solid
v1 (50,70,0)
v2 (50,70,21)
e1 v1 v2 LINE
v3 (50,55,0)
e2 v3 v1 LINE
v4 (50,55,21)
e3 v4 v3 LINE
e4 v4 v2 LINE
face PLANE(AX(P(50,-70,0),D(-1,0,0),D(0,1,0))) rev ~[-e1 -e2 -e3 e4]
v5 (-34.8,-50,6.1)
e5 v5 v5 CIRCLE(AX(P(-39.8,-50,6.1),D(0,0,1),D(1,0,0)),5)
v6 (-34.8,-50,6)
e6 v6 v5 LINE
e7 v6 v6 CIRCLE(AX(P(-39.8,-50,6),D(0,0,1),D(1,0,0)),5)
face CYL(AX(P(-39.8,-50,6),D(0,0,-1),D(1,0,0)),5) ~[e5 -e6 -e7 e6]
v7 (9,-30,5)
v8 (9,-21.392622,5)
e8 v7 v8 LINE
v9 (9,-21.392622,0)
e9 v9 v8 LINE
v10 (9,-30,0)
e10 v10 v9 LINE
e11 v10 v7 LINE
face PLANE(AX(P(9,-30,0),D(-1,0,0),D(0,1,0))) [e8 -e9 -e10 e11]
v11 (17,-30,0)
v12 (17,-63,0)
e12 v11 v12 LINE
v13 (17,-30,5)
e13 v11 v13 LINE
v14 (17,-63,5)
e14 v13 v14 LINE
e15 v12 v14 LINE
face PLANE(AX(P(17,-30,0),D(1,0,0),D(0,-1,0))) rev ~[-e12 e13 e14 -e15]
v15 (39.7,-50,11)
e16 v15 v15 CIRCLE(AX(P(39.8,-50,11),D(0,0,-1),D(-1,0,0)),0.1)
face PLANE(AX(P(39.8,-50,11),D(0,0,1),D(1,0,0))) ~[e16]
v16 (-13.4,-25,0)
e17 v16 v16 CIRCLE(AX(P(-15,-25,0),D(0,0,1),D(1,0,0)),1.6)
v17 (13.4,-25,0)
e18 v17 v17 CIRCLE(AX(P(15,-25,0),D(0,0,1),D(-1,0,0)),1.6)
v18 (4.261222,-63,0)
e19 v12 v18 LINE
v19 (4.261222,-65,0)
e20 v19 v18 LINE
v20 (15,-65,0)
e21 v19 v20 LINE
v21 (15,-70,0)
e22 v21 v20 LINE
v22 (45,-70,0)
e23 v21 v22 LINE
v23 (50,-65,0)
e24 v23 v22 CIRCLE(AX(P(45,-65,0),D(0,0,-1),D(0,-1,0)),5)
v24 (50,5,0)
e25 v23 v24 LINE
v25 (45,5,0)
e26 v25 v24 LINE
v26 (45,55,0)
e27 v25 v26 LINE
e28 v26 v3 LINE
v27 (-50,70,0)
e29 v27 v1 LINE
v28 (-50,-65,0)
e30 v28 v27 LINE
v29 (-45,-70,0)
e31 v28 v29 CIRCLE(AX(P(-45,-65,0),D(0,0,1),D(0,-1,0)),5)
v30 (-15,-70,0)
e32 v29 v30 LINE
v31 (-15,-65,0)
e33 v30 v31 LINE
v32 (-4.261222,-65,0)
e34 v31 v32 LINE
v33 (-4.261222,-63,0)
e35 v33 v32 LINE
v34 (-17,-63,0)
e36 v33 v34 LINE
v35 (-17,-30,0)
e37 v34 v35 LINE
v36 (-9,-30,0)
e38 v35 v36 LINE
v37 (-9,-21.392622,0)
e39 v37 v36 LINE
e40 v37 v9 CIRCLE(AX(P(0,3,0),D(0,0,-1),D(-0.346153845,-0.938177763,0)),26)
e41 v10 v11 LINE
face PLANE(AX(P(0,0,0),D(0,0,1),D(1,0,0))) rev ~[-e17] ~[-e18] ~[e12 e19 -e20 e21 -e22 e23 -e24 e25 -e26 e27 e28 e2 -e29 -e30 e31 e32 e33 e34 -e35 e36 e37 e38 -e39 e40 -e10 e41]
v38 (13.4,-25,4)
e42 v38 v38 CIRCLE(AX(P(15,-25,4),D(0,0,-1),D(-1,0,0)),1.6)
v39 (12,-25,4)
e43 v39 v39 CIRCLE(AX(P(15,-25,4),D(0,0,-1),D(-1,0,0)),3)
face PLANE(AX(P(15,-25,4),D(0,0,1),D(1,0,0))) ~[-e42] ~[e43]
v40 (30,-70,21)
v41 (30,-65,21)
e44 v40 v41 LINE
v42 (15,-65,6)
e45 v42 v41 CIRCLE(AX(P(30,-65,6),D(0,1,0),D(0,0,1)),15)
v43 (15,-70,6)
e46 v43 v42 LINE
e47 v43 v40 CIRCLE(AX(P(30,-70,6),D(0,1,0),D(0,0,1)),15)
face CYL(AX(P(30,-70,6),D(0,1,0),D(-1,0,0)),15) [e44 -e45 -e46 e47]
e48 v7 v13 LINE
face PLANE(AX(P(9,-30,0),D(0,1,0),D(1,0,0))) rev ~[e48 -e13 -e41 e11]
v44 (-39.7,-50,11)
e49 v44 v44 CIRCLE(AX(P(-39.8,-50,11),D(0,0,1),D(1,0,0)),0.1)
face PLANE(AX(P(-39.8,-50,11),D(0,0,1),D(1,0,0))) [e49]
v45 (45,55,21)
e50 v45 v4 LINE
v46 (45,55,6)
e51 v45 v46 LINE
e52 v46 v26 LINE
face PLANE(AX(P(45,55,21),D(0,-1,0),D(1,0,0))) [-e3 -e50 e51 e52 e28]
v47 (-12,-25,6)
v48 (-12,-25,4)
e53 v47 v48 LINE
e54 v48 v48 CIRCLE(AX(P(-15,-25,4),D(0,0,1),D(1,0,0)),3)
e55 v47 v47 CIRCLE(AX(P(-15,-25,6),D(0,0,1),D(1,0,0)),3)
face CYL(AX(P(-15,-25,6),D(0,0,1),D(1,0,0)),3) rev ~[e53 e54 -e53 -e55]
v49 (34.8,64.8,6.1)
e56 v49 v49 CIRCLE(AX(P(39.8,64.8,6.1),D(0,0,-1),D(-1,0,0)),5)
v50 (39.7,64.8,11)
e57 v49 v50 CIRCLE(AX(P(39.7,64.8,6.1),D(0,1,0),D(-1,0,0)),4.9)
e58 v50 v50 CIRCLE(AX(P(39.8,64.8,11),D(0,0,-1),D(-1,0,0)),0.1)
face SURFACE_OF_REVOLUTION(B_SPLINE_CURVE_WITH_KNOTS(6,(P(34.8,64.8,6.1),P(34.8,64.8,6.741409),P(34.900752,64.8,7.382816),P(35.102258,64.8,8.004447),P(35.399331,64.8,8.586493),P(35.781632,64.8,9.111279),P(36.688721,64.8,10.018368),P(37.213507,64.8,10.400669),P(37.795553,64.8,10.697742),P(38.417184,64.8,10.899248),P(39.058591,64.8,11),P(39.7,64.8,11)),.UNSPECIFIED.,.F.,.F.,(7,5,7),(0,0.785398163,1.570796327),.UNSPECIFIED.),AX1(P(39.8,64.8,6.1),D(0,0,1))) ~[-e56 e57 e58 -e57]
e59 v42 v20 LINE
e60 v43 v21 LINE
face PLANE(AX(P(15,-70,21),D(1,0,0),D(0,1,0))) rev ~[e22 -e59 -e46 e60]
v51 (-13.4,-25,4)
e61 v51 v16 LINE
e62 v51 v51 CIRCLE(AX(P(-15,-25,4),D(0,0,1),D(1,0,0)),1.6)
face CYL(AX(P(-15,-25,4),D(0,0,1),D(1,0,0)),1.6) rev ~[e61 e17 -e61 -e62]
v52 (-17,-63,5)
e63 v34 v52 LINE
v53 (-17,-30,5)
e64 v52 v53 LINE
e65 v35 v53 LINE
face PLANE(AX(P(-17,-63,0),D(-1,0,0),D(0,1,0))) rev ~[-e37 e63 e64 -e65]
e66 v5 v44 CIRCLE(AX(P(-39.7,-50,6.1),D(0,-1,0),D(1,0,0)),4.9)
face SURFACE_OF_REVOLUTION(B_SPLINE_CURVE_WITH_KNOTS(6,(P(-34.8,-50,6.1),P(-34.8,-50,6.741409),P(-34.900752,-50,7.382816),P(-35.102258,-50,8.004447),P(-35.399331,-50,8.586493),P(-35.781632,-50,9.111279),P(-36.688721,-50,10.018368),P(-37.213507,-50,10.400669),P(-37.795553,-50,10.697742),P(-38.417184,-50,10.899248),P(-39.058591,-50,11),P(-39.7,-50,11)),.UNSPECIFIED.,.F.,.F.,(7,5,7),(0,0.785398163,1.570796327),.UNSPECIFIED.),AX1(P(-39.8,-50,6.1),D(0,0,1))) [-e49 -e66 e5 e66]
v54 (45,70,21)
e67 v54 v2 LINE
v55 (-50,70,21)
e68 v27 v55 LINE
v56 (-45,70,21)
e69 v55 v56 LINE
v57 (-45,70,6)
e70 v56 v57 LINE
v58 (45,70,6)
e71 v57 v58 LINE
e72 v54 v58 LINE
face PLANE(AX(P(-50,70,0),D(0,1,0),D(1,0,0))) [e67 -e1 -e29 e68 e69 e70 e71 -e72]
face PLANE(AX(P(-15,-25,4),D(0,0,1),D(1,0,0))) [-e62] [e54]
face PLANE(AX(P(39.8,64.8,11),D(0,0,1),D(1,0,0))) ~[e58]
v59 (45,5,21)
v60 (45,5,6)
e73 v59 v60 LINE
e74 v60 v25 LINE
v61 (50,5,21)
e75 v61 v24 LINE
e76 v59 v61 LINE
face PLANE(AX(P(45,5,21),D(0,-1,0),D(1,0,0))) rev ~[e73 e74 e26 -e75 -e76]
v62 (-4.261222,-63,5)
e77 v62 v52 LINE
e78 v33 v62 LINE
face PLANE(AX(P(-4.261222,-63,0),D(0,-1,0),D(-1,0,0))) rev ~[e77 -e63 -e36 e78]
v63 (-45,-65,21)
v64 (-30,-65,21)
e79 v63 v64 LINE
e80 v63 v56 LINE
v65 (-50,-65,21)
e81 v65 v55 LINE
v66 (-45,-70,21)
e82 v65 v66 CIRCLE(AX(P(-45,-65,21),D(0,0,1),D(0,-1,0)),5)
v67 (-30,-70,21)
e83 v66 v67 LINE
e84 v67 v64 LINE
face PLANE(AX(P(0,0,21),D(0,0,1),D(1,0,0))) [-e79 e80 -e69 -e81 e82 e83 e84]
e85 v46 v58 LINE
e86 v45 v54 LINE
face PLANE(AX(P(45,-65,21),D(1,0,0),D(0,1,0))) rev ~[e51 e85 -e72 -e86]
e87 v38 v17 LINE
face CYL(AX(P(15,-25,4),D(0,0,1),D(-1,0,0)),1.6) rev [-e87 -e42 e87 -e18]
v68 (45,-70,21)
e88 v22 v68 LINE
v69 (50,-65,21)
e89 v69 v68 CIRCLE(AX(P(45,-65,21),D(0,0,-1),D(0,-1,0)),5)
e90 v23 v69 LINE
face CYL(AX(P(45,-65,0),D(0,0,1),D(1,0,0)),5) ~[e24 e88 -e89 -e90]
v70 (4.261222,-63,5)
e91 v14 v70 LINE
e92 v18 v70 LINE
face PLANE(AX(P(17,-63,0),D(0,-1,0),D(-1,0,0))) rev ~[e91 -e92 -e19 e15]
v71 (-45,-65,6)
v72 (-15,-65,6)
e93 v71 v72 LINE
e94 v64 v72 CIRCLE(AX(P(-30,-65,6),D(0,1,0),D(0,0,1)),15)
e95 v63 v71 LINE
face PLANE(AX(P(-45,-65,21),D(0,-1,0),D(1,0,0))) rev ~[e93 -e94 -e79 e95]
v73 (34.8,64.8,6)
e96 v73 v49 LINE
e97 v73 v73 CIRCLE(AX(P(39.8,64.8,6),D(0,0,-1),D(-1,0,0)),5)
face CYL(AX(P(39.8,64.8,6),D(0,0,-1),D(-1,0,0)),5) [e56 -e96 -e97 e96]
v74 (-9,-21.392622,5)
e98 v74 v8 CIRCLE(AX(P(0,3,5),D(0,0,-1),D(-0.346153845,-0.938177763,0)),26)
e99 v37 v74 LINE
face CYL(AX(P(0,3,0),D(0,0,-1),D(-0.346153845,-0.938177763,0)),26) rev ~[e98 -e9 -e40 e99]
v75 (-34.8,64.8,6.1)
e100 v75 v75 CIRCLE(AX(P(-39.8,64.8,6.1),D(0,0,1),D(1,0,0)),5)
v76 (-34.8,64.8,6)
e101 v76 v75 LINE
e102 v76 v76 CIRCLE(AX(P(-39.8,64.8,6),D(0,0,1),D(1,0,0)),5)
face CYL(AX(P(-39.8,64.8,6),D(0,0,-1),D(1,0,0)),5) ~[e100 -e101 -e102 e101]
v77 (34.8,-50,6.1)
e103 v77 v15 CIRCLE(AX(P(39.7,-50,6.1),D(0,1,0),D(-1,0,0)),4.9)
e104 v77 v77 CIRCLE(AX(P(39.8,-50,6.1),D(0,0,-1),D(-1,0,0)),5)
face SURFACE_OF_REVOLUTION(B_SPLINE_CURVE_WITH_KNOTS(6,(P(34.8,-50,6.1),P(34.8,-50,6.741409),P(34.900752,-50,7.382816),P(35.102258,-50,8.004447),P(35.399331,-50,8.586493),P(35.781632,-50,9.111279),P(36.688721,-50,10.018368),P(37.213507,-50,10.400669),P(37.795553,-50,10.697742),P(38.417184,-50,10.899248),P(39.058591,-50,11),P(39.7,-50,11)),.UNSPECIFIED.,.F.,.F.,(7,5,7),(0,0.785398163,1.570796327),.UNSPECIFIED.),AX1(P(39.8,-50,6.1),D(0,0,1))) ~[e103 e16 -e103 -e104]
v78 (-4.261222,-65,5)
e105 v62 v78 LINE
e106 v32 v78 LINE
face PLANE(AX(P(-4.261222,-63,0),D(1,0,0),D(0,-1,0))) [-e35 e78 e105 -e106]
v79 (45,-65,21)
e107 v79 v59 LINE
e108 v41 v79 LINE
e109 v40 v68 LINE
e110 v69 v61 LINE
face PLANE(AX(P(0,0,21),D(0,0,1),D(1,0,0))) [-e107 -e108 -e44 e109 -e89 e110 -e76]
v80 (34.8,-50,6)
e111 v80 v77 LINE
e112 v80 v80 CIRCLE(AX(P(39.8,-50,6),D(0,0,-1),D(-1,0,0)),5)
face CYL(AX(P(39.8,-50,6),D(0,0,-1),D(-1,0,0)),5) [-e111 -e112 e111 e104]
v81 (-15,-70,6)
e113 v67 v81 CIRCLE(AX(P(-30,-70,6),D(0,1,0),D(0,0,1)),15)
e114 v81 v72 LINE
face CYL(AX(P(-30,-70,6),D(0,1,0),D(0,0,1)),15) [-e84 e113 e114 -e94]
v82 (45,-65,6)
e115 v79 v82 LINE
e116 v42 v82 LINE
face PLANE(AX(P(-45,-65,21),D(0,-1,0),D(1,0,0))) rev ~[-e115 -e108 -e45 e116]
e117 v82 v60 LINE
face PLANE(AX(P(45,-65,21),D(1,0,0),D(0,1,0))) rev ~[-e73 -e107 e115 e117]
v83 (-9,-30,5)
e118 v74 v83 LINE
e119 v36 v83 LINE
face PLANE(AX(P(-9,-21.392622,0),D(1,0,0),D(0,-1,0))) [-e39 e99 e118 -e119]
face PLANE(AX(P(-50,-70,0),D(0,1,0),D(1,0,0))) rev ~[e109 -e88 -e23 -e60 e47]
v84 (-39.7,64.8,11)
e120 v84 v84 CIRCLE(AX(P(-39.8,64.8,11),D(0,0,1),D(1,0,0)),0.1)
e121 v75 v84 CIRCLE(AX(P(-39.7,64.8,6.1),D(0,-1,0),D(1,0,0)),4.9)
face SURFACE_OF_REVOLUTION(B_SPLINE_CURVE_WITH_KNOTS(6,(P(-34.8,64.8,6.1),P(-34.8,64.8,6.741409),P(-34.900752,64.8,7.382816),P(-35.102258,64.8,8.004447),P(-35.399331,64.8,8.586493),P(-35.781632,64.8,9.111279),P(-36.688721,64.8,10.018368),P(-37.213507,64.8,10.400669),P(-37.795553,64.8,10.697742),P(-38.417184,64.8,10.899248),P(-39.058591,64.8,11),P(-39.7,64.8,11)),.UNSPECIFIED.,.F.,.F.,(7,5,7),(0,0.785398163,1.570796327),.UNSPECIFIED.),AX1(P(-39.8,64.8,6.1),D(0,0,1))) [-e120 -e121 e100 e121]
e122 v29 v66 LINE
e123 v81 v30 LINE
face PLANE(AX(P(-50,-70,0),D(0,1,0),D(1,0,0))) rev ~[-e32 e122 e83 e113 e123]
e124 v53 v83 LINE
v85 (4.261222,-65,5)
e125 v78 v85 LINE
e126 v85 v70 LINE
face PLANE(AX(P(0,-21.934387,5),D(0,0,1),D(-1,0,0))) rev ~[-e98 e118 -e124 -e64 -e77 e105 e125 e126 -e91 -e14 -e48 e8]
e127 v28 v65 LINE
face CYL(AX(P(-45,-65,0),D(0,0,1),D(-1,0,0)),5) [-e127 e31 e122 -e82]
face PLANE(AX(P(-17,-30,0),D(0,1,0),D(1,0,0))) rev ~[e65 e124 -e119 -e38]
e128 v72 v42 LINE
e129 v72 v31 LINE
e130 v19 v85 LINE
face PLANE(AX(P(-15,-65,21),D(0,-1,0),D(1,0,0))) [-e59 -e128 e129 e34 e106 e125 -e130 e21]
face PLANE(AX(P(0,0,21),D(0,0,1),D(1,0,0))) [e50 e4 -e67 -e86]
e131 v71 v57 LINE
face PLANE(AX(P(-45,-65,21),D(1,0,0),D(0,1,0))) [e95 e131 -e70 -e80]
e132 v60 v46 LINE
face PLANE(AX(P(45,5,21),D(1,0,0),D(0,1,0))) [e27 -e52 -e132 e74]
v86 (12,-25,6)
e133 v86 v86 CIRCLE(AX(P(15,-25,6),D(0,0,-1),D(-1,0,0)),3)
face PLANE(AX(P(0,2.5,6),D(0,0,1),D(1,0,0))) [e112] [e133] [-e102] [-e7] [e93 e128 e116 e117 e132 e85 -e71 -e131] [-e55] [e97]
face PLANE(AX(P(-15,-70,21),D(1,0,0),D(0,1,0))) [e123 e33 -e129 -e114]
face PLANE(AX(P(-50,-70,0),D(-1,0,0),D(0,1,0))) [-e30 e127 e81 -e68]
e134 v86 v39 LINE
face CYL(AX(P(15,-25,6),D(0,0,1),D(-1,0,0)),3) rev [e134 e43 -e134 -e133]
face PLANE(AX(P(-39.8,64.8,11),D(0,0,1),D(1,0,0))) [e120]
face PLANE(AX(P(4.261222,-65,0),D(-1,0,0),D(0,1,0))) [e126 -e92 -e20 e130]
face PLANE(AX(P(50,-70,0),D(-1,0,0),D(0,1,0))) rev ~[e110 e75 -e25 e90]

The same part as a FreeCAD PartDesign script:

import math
import FreeCAD as App
import Part
import Sketcher
from FreeCAD import Vector


def edges_at(feature, points):
    """Names of the edges that pass closest to the given points."""
    edges = feature.Shape.Edges
    near = lambda p: min(range(len(edges)), key=lambda i: edges[i].distToShape(Part.Vertex(*p))[0])
    return sorted({f"Edge{near(p) + 1}" for p in points})


def add_polygon(sketch, points):
    """Adds a closed chain of lines whose ends are joined by coincident constraints."""
    first, n = sketch.GeometryCount, len(points)
    for a, b in zip(points, points[1:] + points[:1]):
        sketch.addGeometry(Part.LineSegment(App.Vector(*a, 0), App.Vector(*b, 0)), False)
    for i in range(n):
        sketch.addConstraint(Sketcher.Constraint("Coincident", first + i, 2, first + (i + 1) % n, 1))

doc = App.newDocument("Part")
body = doc.addObject("PartDesign::Body", "Body")

sketch1 = doc.addObject("Sketcher::SketchObject", "Sketch")
body.addObject(sketch1)
sketch1.AttachmentSupport = (doc.XY_Plane, [""])
sketch1.MapMode = "FlatFace"
add_polygon(sketch1, [(-50, 70), (-50, -70), (50, -70), (50, 70)])
sketch1.addConstraint([
    Sketcher.Constraint("Vertical", 0),
    Sketcher.Constraint("Horizontal", 1),
    Sketcher.Constraint("Vertical", 2),
    Sketcher.Constraint("Horizontal", 3),
    Sketcher.Constraint("Symmetric", 0, 2, 2, 2, -1, 1),
    Sketcher.Constraint("DistanceX", 1, 1, 1, 2, 100.0),
    Sketcher.Constraint("DistanceY", 0, 2, 0, 1, 140.0),
])
pad1 = doc.addObject("PartDesign::Pad", "Pad")
body.addObject(pad1)
pad1.Profile = sketch1
pad1.Length = 21

sketch2 = doc.addObject("Sketcher::SketchObject", "Sketch001")
body.addObject(sketch2)
sketch2.AttachmentSupport = (doc.XY_Plane, [""])
sketch2.MapMode = "FlatFace"
sketch2.AttachmentOffset = App.Placement(Vector(0, 0, 21), App.Rotation())
add_polygon(sketch2, [(-45, 70), (-45, -65), (45, -65), (45, 70)])
sketch2.addConstraint([
    Sketcher.Constraint("Vertical", 0),
    Sketcher.Constraint("Horizontal", 1),
    Sketcher.Constraint("Vertical", 2),
    Sketcher.Constraint("Horizontal", 3),
    Sketcher.Constraint("DistanceX", 1, 1, 1, 2, 90.0),
    Sketcher.Constraint("DistanceY", 0, 2, 0, 1, 135.0),
    Sketcher.Constraint("DistanceX", 0, 2, -1, 1, 45.0),
    Sketcher.Constraint("DistanceY", 0, 2, -1, 1, 65.0),
])
pocket1 = doc.addObject("PartDesign::Pocket", "Pocket")
body.addObject(pocket1)
pocket1.Profile = sketch2
pocket1.Length = 15

sketch3 = doc.addObject("Sketcher::SketchObject", "Sketch002")
body.addObject(sketch3)
sketch3.AttachmentSupport = (doc.XY_Plane, [""])
sketch3.MapMode = "FlatFace"
sketch3.AttachmentOffset = App.Placement(Vector(0, 0, 6), App.Rotation())
sketch3.addGeometry(Part.Circle(Vector(-15, -25, 0), Vector(0, 0, 1), 3), False)
sketch3.addConstraint([
    Sketcher.Constraint("Diameter", 0, 6.0),
    Sketcher.Constraint("DistanceX", 0, 3, -1, 1, 15.0),
    Sketcher.Constraint("DistanceY", 0, 3, -1, 1, 25.0),
])
pocket2 = doc.addObject("PartDesign::Pocket", "Pocket001")
body.addObject(pocket2)
pocket2.Profile = sketch3
pocket2.Length = 2

sketch4 = doc.addObject("Sketcher::SketchObject", "Sketch003")
body.addObject(sketch4)
sketch4.AttachmentSupport = (doc.XY_Plane, [""])
sketch4.MapMode = "FlatFace"
sketch4.AttachmentOffset = App.Placement(Vector(0, 0, 4), App.Rotation())
sketch4.addGeometry(Part.Circle(Vector(-15, -25, 0), Vector(0, 0, 1), 1.6), False)
sketch4.addConstraint([
    Sketcher.Constraint("Diameter", 0, 3.2),
    Sketcher.Constraint("DistanceX", 0, 3, -1, 1, 15.0),
    Sketcher.Constraint("DistanceY", 0, 3, -1, 1, 25.0),
])
pocket3 = doc.addObject("PartDesign::Pocket", "Pocket002")
body.addObject(pocket3)
pocket3.Profile = sketch4
pocket3.Type = "ThroughAll"
doc.recompute()

mirrored = doc.addObject("PartDesign::Mirrored", "Mirrored")
body.addObject(mirrored)
mirrored.Originals = [pocket3, pocket2]
mirrored.MirrorPlane = (doc.YZ_Plane, [""])
body.Tip = mirrored

sketch5 = doc.addObject("Sketcher::SketchObject", "Sketch004")
body.addObject(sketch5)
sketch5.AttachmentSupport = (doc.XY_Plane, [""])
sketch5.MapMode = "FlatFace"
sketch5.AttachmentOffset = App.Placement(Vector(0, 0, 21), App.Rotation())
add_polygon(sketch5, [(45, 55), (45, 5), (50, 5), (50, 55)])
sketch5.addConstraint([
    Sketcher.Constraint("Vertical", 0),
    Sketcher.Constraint("Horizontal", 1),
    Sketcher.Constraint("Vertical", 2),
    Sketcher.Constraint("Horizontal", 3),
    Sketcher.Constraint("DistanceX", 1, 1, 1, 2, 5.0),
    Sketcher.Constraint("DistanceY", 0, 2, 0, 1, 50.0),
    Sketcher.Constraint("DistanceX", -1, 1, 0, 2, 45.0),
    Sketcher.Constraint("DistanceY", -1, 1, 0, 2, 5.0),
])
pocket4 = doc.addObject("PartDesign::Pocket", "Pocket003")
body.addObject(pocket4)
pocket4.Profile = sketch5
pocket4.Type = "ThroughAll"

sketch6 = doc.addObject("Sketcher::SketchObject", "Sketch005")
body.addObject(sketch6)
sketch6.AttachmentSupport = (doc.XY_Plane, [""])
sketch6.MapMode = "FlatFace"
sketch6.AttachmentOffset = App.Placement(Vector(0, 0, 21), App.Rotation())
add_polygon(sketch6, [(-15, -65), (-15, -70), (15, -70), (15, -65)])
sketch6.addConstraint([
    Sketcher.Constraint("Vertical", 0),
    Sketcher.Constraint("Horizontal", 1),
    Sketcher.Constraint("Vertical", 2),
    Sketcher.Constraint("Horizontal", 3),
    Sketcher.Constraint("DistanceX", 1, 1, 1, 2, 30.0),
    Sketcher.Constraint("DistanceY", 0, 2, 0, 1, 5.0),
    Sketcher.Constraint("DistanceX", 0, 2, -1, 1, 15.0),
    Sketcher.Constraint("DistanceY", 0, 2, -1, 1, 70.0),
])
pocket5 = doc.addObject("PartDesign::Pocket", "Pocket004")
body.addObject(pocket5)
pocket5.Profile = sketch6
pocket5.Type = "ThroughAll"
doc.recompute()

fillet = doc.addObject("PartDesign::Fillet", "Fillet")
body.addObject(fillet)
fillet.Base = (pocket5, edges_at(pocket5, [(-50, -70, 10.5), (50, -70, 10.5)]))
fillet.Radius = 5

sketch7 = doc.addObject("Sketcher::SketchObject", "Sketch006")
body.addObject(sketch7)
sketch7.AttachmentSupport = (doc.XY_Plane, [""])
sketch7.MapMode = "FlatFace"
sketch7.addGeometry([
    Part.LineSegment(Vector(9, -21.392622, 0), Vector(9, -30, 0)),
    Part.LineSegment(Vector(9, -30, 0), Vector(17, -30, 0)),
    Part.LineSegment(Vector(17, -30, 0), Vector(17, -63, 0)),
    Part.LineSegment(Vector(17, -63, 0), Vector(4.261222, -63, 0)),
    Part.LineSegment(Vector(4.261222, -63, 0), Vector(4.261222, -65, 0)),
    Part.LineSegment(Vector(4.261222, -65, 0), Vector(-4.261222, -65, 0)),
    Part.LineSegment(Vector(-4.261222, -65, 0), Vector(-4.261222, -63, 0)),
    Part.LineSegment(Vector(-4.261222, -63, 0), Vector(-17, -63, 0)),
    Part.LineSegment(Vector(-17, -63, 0), Vector(-17, -30, 0)),
    Part.LineSegment(Vector(-17, -30, 0), Vector(-9, -30, 0)),
    Part.LineSegment(Vector(-9, -30, 0), Vector(-9, -21.392622, 0)),
    Part.ArcOfCircle(Part.Circle(Vector(0, 3, 0), Vector(0, 0, 1), 26), math.radians(-69.747753), math.radians(249.747753)),
], False)
sketch7.addConstraint([
    Sketcher.Constraint("Coincident", 0, 2, 1, 1),
    Sketcher.Constraint("Coincident", 1, 2, 2, 1),
    Sketcher.Constraint("Coincident", 2, 2, 3, 1),
    Sketcher.Constraint("Coincident", 3, 2, 4, 1),
    Sketcher.Constraint("Coincident", 4, 2, 5, 1),
    Sketcher.Constraint("Coincident", 5, 2, 6, 1),
    Sketcher.Constraint("Coincident", 6, 2, 7, 1),
    Sketcher.Constraint("Coincident", 7, 2, 8, 1),
    Sketcher.Constraint("Coincident", 8, 2, 9, 1),
    Sketcher.Constraint("Coincident", 9, 2, 10, 1),
    Sketcher.Constraint("Coincident", 10, 2, 11, 2),
    Sketcher.Constraint("Coincident", 11, 1, 0, 1),
    Sketcher.Constraint("Vertical", 0),
    Sketcher.Constraint("Horizontal", 1),
    Sketcher.Constraint("Vertical", 2),
    Sketcher.Constraint("Horizontal", 3),
    Sketcher.Constraint("Vertical", 4),
    Sketcher.Constraint("Horizontal", 5),
    Sketcher.Constraint("Vertical", 6),
    Sketcher.Constraint("Horizontal", 7),
    Sketcher.Constraint("Vertical", 8),
    Sketcher.Constraint("Horizontal", 9),
    Sketcher.Constraint("Vertical", 10),
    Sketcher.Constraint("Symmetric", 3, 2, 6, 2, -2),
    Sketcher.Constraint("Symmetric", 1, 2, 8, 2, -2),
    Sketcher.Constraint("Symmetric", 10, 2, 11, 1, -2),
    Sketcher.Constraint("Radius", 11, 26.0),
    Sketcher.Constraint("DistanceX", 1, 1, 1, 2, 8.0),
    Sketcher.Constraint("DistanceY", 2, 2, 2, 1, 33.0),
    Sketcher.Constraint("DistanceY", 4, 2, 4, 1, 2.0),
    Sketcher.Constraint("DistanceY", -1, 1, 11, 3, 3.0),
    Sketcher.Constraint("DistanceX", -1, 1, 0, 2, 9.0),
    Sketcher.Constraint("DistanceY", 0, 2, -1, 1, 30.0),
    Sketcher.Constraint("DistanceX", 3, 2, 3, 1, 12.738778),
])
pocket6 = doc.addObject("PartDesign::Pocket", "Pocket005")
body.addObject(pocket6)
pocket6.Profile = sketch7
pocket6.Length = 5
pocket6.Reversed = True
doc.recompute()

fillet2 = doc.addObject("PartDesign::Fillet", "Fillet001")
body.addObject(fillet2)
fillet2.Base = (pocket6, edges_at(pocket6, [(-15, -67.5, 21), (15, -67.5, 21)]))
fillet2.Radius = 15

sketch8 = doc.addObject("Sketcher::SketchObject", "Sketch007")
body.addObject(sketch8)
sketch8.AttachmentSupport = (doc.XY_Plane, [""])
sketch8.MapMode = "FlatFace"
sketch8.AttachmentOffset = App.Placement(Vector(0, 0, 6), App.Rotation())
sketch8.addGeometry(Part.Circle(Vector(-39.8, 64.8, 0), Vector(0, 0, 1), 5), False)
sketch8.addConstraint([
    Sketcher.Constraint("Diameter", 0, 10.0),
    Sketcher.Constraint("DistanceX", 0, 3, -1, 1, 39.8),
    Sketcher.Constraint("DistanceY", -1, 1, 0, 3, 64.8),
])
pad2 = doc.addObject("PartDesign::Pad", "Pad001")
body.addObject(pad2)
pad2.Profile = sketch8
pad2.Length = 5
doc.recompute()

mirrored2 = doc.addObject("PartDesign::Mirrored", "Mirrored001")
body.addObject(mirrored2)
mirrored2.Originals = [pad2]
mirrored2.MirrorPlane = (doc.YZ_Plane, [""])
body.Tip = mirrored2
doc.recompute()

fillet3 = doc.addObject("PartDesign::Fillet", "Fillet002")
body.addObject(fillet3)
fillet3.Base = (mirrored2, edges_at(mirrored2, [(-44.8, 64.8, 11), (44.8, 64.8, 11)]))
fillet3.Radius = 4.9

sketch9 = doc.addObject("Sketcher::SketchObject", "Sketch008")
body.addObject(sketch9)
sketch9.AttachmentSupport = (doc.XY_Plane, [""])
sketch9.MapMode = "FlatFace"
sketch9.AttachmentOffset = App.Placement(Vector(0, 0, 6), App.Rotation())
sketch9.addGeometry(Part.Circle(Vector(-39.8, -50, 0), Vector(0, 0, 1), 5), False)
sketch9.addConstraint([
    Sketcher.Constraint("Diameter", 0, 10.0),
    Sketcher.Constraint("DistanceY", 0, 3, -1, 1, 50.0),
    Sketcher.Constraint("DistanceX", 0, 3, -1, 1, 39.8),
])
pad3 = doc.addObject("PartDesign::Pad", "Pad002")
body.addObject(pad3)
pad3.Profile = sketch9
pad3.Length = 5
doc.recompute()

mirrored3 = doc.addObject("PartDesign::Mirrored", "Mirrored002")
body.addObject(mirrored3)
mirrored3.Originals = [pad3]
mirrored3.MirrorPlane = (doc.YZ_Plane, [""])
body.Tip = mirrored3
doc.recompute()

fillet4 = doc.addObject("PartDesign::Fillet", "Fillet003")
body.addObject(fillet4)
fillet4.Base = (mirrored3, edges_at(mirrored3, [(-44.8, -50, 11), (44.8, -50, 11)]))
fillet4.Radius = 4.9

doc.recompute()
